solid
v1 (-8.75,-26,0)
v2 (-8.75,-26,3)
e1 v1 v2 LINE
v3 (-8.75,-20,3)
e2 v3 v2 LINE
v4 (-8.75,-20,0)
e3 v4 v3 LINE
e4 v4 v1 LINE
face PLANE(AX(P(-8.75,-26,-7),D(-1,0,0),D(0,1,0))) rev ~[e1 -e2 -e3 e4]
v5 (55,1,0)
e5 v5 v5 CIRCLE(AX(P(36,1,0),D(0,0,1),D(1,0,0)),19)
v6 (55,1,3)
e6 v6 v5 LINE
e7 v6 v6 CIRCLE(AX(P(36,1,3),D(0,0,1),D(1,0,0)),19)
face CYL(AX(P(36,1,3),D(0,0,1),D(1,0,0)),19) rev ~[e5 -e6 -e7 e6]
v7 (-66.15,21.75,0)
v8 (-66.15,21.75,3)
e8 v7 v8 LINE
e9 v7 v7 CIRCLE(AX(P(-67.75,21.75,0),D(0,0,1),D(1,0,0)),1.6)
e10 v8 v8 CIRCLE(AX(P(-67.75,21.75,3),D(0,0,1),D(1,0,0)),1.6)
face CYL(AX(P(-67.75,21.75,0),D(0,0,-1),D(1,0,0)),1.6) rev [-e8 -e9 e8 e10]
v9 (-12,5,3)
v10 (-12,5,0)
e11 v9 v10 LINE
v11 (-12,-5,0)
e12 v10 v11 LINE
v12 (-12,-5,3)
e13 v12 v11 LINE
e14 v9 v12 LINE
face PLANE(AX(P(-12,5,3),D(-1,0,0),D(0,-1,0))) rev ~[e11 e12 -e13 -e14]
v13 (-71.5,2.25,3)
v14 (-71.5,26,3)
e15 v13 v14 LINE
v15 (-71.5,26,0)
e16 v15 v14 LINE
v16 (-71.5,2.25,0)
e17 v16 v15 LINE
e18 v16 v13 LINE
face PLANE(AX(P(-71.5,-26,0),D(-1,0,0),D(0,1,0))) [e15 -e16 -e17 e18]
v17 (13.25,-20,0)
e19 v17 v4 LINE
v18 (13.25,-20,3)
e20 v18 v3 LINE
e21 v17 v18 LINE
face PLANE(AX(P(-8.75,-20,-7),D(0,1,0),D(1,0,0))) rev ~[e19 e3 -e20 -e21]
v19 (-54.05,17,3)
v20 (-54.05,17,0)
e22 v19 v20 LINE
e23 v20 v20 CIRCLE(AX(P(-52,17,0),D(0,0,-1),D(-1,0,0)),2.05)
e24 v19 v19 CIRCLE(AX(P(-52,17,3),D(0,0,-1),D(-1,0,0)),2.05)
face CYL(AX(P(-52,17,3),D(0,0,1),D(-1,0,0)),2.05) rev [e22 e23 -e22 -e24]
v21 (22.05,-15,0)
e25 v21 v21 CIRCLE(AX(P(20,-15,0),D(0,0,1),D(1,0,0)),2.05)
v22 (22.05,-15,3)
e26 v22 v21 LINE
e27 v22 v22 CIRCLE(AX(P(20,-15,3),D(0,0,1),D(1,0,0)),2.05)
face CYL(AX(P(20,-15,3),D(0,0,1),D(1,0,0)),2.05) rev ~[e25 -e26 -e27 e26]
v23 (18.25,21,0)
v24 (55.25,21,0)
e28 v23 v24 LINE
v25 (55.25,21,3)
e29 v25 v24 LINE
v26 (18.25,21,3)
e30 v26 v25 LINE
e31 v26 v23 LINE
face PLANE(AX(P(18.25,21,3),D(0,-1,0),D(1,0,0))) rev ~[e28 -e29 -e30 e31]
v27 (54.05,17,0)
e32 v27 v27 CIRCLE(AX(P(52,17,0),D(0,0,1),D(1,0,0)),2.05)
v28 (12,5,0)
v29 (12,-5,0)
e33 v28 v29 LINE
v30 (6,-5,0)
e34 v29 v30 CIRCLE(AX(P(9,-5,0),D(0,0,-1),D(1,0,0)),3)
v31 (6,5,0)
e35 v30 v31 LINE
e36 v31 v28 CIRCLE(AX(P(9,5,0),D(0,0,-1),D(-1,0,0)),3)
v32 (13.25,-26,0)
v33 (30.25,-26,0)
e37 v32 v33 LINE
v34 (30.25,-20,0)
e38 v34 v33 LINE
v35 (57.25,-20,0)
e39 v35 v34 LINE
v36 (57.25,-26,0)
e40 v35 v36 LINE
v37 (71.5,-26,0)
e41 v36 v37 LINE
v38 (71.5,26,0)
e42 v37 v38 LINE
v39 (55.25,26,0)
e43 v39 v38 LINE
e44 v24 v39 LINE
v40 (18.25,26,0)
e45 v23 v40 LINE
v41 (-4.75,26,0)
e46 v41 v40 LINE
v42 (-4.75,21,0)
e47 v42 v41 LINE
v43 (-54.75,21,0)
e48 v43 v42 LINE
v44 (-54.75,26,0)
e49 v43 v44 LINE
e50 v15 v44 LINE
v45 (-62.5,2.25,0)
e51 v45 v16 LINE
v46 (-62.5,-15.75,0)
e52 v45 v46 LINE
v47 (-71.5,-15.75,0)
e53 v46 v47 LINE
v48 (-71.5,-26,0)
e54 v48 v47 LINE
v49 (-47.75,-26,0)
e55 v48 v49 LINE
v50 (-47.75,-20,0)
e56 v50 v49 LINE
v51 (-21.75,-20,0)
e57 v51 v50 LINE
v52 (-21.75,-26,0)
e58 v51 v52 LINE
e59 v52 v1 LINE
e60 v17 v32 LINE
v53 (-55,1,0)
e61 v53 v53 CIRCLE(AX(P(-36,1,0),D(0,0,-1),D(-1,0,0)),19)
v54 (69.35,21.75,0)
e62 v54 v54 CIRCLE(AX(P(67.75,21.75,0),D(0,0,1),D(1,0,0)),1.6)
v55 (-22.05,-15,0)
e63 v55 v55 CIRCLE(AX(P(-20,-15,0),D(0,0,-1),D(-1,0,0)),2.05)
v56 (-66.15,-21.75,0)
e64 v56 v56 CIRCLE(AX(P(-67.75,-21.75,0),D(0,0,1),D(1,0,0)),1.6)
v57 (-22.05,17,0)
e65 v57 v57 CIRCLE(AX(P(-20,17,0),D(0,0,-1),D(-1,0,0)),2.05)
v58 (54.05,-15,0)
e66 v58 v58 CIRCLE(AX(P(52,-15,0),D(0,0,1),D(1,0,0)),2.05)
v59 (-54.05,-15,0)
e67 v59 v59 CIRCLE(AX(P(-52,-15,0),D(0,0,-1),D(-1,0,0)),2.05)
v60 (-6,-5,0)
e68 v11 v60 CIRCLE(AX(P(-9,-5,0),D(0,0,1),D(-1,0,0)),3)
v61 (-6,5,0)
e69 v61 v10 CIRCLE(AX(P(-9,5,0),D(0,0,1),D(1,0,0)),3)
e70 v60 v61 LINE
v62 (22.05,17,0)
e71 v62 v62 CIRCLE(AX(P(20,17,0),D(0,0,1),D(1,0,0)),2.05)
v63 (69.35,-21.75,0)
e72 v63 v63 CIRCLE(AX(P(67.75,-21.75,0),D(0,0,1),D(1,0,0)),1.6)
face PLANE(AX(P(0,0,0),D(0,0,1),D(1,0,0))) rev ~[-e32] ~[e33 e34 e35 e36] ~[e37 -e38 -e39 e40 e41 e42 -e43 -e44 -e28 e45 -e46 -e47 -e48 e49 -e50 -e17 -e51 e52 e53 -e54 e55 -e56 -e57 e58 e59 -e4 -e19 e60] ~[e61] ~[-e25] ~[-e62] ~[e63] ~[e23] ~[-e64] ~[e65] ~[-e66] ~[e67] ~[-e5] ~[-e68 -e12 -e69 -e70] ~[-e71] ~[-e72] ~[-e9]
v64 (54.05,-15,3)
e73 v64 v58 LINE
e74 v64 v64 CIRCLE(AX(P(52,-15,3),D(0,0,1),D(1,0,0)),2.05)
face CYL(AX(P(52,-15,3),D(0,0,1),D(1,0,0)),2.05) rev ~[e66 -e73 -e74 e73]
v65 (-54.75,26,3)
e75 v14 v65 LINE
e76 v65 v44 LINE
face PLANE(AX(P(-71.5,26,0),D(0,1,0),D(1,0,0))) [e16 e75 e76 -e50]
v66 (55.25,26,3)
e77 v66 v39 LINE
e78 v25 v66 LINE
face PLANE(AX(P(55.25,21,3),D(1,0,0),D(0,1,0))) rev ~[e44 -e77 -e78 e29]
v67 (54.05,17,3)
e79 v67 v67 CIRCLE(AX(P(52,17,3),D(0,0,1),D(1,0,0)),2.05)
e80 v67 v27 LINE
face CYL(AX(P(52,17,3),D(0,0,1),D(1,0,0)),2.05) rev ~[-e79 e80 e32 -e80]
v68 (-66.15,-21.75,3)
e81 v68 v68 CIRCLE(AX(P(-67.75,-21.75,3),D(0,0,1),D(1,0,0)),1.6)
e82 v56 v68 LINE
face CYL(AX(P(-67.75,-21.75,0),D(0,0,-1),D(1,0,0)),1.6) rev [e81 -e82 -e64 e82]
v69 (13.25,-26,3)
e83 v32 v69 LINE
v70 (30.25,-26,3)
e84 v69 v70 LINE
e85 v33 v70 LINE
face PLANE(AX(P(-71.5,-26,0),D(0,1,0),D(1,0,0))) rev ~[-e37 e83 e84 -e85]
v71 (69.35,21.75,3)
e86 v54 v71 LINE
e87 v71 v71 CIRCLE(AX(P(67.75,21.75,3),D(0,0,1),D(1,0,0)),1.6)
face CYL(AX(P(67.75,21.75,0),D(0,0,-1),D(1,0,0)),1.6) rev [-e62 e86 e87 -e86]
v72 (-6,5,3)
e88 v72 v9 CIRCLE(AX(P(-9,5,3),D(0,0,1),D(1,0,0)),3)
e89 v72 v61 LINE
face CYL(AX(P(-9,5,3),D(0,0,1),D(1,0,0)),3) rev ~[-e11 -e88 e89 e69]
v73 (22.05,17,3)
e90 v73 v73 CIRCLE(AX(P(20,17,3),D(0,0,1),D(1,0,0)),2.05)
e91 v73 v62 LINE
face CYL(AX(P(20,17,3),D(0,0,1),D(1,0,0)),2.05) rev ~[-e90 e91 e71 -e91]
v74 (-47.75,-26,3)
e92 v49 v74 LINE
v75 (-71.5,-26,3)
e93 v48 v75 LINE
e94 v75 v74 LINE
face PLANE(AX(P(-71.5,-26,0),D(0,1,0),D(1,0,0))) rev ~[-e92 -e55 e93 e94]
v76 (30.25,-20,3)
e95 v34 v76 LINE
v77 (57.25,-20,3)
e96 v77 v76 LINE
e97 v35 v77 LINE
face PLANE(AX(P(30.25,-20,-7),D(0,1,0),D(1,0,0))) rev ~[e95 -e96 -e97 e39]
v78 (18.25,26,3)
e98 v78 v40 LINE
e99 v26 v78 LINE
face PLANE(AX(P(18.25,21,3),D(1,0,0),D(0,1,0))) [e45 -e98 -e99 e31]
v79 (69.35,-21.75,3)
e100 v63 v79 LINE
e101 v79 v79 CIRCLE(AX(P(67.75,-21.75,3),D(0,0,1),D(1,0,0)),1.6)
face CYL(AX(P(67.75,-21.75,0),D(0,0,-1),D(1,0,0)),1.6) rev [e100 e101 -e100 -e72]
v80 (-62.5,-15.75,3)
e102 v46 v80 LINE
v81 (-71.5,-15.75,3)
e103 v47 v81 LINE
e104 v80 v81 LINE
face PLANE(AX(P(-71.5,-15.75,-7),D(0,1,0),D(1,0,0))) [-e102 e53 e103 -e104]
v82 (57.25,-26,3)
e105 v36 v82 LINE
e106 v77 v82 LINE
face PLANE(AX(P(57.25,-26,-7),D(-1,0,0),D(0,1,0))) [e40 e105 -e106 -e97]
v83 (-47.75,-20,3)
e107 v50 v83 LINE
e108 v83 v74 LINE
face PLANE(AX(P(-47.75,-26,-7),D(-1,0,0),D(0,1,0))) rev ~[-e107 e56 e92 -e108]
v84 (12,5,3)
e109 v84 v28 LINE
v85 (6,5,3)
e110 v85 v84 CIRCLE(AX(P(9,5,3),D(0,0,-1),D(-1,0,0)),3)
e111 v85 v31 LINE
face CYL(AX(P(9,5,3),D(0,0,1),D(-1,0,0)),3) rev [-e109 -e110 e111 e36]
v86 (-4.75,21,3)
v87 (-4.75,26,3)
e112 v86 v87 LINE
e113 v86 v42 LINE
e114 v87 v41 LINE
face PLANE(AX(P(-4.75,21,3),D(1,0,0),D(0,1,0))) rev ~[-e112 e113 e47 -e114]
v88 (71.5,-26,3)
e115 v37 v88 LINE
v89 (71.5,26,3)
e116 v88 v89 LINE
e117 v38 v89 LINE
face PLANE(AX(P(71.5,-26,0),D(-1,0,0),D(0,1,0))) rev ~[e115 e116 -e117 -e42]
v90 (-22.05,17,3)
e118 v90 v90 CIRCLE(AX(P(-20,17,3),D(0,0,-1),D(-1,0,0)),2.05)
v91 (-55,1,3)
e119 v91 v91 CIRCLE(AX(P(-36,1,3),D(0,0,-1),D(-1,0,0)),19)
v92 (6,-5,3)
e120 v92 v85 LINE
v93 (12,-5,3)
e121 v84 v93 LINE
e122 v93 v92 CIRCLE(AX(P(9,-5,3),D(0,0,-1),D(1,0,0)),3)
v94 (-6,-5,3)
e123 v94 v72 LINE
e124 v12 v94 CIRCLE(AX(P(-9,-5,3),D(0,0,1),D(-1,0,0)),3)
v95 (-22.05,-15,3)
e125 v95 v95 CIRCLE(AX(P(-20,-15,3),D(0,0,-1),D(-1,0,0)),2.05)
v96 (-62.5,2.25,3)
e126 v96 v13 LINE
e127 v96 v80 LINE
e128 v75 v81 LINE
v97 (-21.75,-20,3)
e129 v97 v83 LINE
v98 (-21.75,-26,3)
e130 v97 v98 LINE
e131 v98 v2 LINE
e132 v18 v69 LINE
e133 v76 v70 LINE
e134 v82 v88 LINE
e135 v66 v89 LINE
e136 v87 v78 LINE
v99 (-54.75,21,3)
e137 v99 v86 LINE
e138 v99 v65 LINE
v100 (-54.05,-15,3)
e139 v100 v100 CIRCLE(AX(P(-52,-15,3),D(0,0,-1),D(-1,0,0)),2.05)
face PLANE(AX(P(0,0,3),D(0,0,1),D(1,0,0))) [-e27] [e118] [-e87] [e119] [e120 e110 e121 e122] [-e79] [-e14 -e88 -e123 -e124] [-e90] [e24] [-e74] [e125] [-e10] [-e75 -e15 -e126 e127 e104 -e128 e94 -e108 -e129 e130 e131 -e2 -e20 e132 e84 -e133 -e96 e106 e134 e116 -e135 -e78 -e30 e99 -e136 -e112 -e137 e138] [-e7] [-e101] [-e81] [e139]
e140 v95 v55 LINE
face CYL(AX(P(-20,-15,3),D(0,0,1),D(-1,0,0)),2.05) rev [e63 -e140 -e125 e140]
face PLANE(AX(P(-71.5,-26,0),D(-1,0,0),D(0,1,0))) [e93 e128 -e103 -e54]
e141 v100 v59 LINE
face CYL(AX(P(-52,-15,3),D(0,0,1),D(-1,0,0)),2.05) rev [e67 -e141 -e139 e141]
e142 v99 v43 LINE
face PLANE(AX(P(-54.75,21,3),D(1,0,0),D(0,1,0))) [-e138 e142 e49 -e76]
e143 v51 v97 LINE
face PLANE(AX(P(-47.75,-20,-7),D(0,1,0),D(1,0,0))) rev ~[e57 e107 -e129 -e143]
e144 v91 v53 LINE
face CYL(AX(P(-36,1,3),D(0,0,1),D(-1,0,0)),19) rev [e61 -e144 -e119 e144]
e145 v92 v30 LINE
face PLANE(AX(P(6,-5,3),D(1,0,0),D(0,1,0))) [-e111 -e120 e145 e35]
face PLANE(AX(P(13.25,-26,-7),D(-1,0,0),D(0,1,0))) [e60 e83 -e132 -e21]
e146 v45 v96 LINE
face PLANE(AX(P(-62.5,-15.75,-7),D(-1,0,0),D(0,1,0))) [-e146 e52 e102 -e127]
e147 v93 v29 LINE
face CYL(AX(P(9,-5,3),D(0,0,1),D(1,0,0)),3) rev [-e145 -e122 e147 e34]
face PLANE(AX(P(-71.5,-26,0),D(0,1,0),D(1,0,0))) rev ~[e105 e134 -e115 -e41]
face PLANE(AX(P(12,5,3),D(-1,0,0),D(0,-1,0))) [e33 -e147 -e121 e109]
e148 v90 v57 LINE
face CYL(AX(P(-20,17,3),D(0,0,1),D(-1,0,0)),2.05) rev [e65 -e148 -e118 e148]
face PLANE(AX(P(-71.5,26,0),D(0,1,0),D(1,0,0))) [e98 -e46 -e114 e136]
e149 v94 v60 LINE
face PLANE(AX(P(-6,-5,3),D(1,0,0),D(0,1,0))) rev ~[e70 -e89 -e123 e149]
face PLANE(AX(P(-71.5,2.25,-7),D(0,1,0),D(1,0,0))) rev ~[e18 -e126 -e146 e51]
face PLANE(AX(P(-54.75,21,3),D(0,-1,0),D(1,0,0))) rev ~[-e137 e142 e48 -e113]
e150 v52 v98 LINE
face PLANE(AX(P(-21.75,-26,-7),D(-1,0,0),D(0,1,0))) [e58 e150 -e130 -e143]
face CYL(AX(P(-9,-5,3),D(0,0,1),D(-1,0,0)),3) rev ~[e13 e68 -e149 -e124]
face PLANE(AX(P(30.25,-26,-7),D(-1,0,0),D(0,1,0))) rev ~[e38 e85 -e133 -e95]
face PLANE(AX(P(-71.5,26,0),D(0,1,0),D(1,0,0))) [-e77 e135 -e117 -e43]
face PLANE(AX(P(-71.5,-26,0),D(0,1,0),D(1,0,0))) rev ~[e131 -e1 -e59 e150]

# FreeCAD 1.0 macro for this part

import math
import FreeCAD as App
import Part
import Sketcher
from FreeCAD import Vector

doc = App.newDocument("Part")
body = doc.addObject("PartDesign::Body", "Body")

sketch1 = doc.addObject("Sketcher::SketchObject", "Sketch")
body.addObject(sketch1)
sketch1.AttachmentSupport = (doc.XY_Plane, [""])
sketch1.MapMode = "FlatFace"
sketch1.addGeometry([
    Part.LineSegment(Vector(-71.5, 26, 0), Vector(-71.5, -26, 0)),
    Part.LineSegment(Vector(-71.5, -26, 0), Vector(71.5, -26, 0)),
    Part.LineSegment(Vector(71.5, -26, 0), Vector(71.5, 26, 0)),
    Part.LineSegment(Vector(71.5, 26, 0), Vector(-71.5, 26, 0)),
    Part.Circle(Vector(-67.8, -21.8, 0), Vector(0, 0, 1), 1.6),
    Part.Circle(Vector(67.8, -21.8, 0), Vector(0, 0, 1), 1.6),
    Part.Circle(Vector(-67.8, 21.8, 0), Vector(0, 0, 1), 1.6),
    Part.Circle(Vector(67.8, 21.8, 0), Vector(0, 0, 1), 1.6),
], False)
sketch1.addConstraint([
    Sketcher.Constraint("Coincident", 0, 2, 1, 1),
    Sketcher.Constraint("Coincident", 1, 2, 2, 1),
    Sketcher.Constraint("Coincident", 2, 2, 3, 1),
    Sketcher.Constraint("Coincident", 3, 2, 0, 1),
    Sketcher.Constraint("Vertical", 0),
    Sketcher.Constraint("Horizontal", 1),
    Sketcher.Constraint("Vertical", 2),
    Sketcher.Constraint("Horizontal", 3),
    Sketcher.Constraint("Equal", 4, 5),
    Sketcher.Constraint("Equal", 5, 6),
    Sketcher.Constraint("Equal", 6, 7),
    Sketcher.Constraint("Symmetric", 5, 3, 6, 3, -1, 1),
    Sketcher.Constraint("Symmetric", 4, 3, 7, 3, -1, 1),
    Sketcher.Constraint("Symmetric", 0, 2, 2, 2, -1, 1),
    Sketcher.Constraint("Symmetric", 4, 3, 5, 3, -2),
    Sketcher.Constraint("Diameter", 4, 3.2),
    Sketcher.Constraint("DistanceX", 1, 1, 1, 2, 143.0),
    Sketcher.Constraint("DistanceY", 0, 2, 0, 1, 52.0),
    Sketcher.Constraint("DistanceX", 4, 3, 5, 3, 135.5),
    Sketcher.Constraint("DistanceY", 4, 3, 6, 3, 43.5),
])
pad1 = doc.addObject("PartDesign::Pad", "Pad")
body.addObject(pad1)
pad1.Profile = sketch1
pad1.Length = 3

sketch2 = doc.addObject("Sketcher::SketchObject", "Sketch001")
body.addObject(sketch2)
sketch2.AttachmentSupport = (doc.XY_Plane, [""])
sketch2.MapMode = "FlatFace"
sketch2.AttachmentOffset = App.Placement(Vector(0, 0, 3), App.Rotation())
sketch2.addGeometry([
    Part.LineSegment(Vector(-48, -20, 0), Vector(-48, -26, 0)),
    Part.LineSegment(Vector(-48, -26, 0), Vector(-22, -26, 0)),
    Part.LineSegment(Vector(-22, -26, 0), Vector(-22, -20, 0)),
    Part.LineSegment(Vector(-22, -20, 0), Vector(-48, -20, 0)),
    Part.LineSegment(Vector(-9, -20, 0), Vector(-9, -26, 0)),
    Part.LineSegment(Vector(-9, -26, 0), Vector(13, -26, 0)),
    Part.LineSegment(Vector(13, -26, 0), Vector(13, -20, 0)),
    Part.LineSegment(Vector(13, -20, 0), Vector(-9, -20, 0)),
    Part.LineSegment(Vector(30, -20, 0), Vector(30, -26, 0)),
    Part.LineSegment(Vector(30, -26, 0), Vector(57, -26, 0)),
    Part.LineSegment(Vector(57, -26, 0), Vector(57, -20, 0)),
    Part.LineSegment(Vector(57, -20, 0), Vector(30, -20, 0)),
    Part.LineSegment(Vector(-72, 2, 0), Vector(-72, -16, 0)),
    Part.LineSegment(Vector(-72, -16, 0), Vector(-62, -16, 0)),
    Part.LineSegment(Vector(-62, -16, 0), Vector(-62, 2, 0)),
    Part.LineSegment(Vector(-62, 2, 0), Vector(-72, 2, 0)),
], False)
sketch2.addConstraint([
    Sketcher.Constraint("Coincident", 0, 2, 1, 1),
    Sketcher.Constraint("Coincident", 1, 2, 2, 1),
    Sketcher.Constraint("Coincident", 2, 2, 3, 1),
    Sketcher.Constraint("Coincident", 3, 2, 0, 1),
    Sketcher.Constraint("Coincident", 4, 2, 5, 1),
    Sketcher.Constraint("Coincident", 5, 2, 6, 1),
    Sketcher.Constraint("Coincident", 6, 2, 7, 1),
    Sketcher.Constraint("Coincident", 7, 2, 4, 1),
    Sketcher.Constraint("Coincident", 8, 2, 9, 1),
    Sketcher.Constraint("Coincident", 9, 2, 10, 1),
    Sketcher.Constraint("Coincident", 10, 2, 11, 1),
    Sketcher.Constraint("Coincident", 11, 2, 8, 1),
    Sketcher.Constraint("Coincident", 12, 2, 13, 1),
    Sketcher.Constraint("Coincident", 13, 2, 14, 1),
    Sketcher.Constraint("Coincident", 14, 2, 15, 1),
    Sketcher.Constraint("Coincident", 15, 2, 12, 1),
    Sketcher.Constraint("Vertical", 0),
    Sketcher.Constraint("Horizontal", 1),
    Sketcher.Constraint("Vertical", 2),
    Sketcher.Constraint("Horizontal", 3),
    Sketcher.Constraint("Vertical", 4),
    Sketcher.Constraint("Horizontal", 5),
    Sketcher.Constraint("Vertical", 6),
    Sketcher.Constraint("Horizontal", 7),
    Sketcher.Constraint("Vertical", 8),
    Sketcher.Constraint("Horizontal", 9),
    Sketcher.Constraint("Vertical", 10),
    Sketcher.Constraint("Horizontal", 11),
    Sketcher.Constraint("Vertical", 12),
    Sketcher.Constraint("Horizontal", 13),
    Sketcher.Constraint("Vertical", 14),
    Sketcher.Constraint("Horizontal", 15),
    Sketcher.Constraint("Horizontal", 1, 2, 4, 2),
    Sketcher.Constraint("Horizontal", 3, 2, 6, 2),
    Sketcher.Constraint("Horizontal", 5, 2, 8, 2),
    Sketcher.Constraint("Horizontal", 7, 2, 10, 2),
    Sketcher.Constraint("DistanceX", 1, 1, 1, 2, 26.0),
    Sketcher.Constraint("DistanceX", 5, 1, 5, 2, 22.0),
    Sketcher.Constraint("DistanceX", 9, 1, 9, 2, 27.0),
    Sketcher.Constraint("DistanceX", 13, 1, 13, 2, 9.0),
    Sketcher.Constraint("DistanceY", 0, 2, 0, 1, 6.0),
    Sketcher.Constraint("DistanceY", 12, 2, 12, 1, 18.0),
    Sketcher.Constraint("DistanceY", 0, 2, -1, 1, 26.0),
    Sketcher.Constraint("DistanceX", 1, 2, 4, 2, 13.0),
    Sketcher.Constraint("DistanceX", 5, 2, 8, 2, 17.0),
    Sketcher.Constraint("DistanceX", 12, 2, -1, 1, 71.5),
    Sketcher.Constraint("DistanceX", 0, 2, -1, 1, 47.75),
    Sketcher.Constraint("DistanceY", 12, 2, -1, 1, 15.75),
])
pocket1 = doc.addObject("PartDesign::Pocket", "Pocket")
body.addObject(pocket1)
pocket1.Profile = sketch2
pocket1.Type = "ThroughAll"
pocket1.Midplane = True

sketch3 = doc.addObject("Sketcher::SketchObject", "Sketch002")
body.addObject(sketch3)
sketch3.AttachmentSupport = (doc.XY_Plane, [""])
sketch3.MapMode = "FlatFace"
sketch3.AttachmentOffset = App.Placement(Vector(0, 0, 3), App.Rotation())
sketch3.addGeometry([
    Part.LineSegment(Vector(-55, 26, 0), Vector(-55, 21, 0)),
    Part.LineSegment(Vector(-55, 21, 0), Vector(-5, 21, 0)),
    Part.LineSegment(Vector(-5, 21, 0), Vector(-5, 26, 0)),
    Part.LineSegment(Vector(-5, 26, 0), Vector(-55, 26, 0)),
    Part.LineSegment(Vector(18, 26, 0), Vector(18, 21, 0)),
    Part.LineSegment(Vector(18, 21, 0), Vector(55, 21, 0)),
    Part.LineSegment(Vector(55, 21, 0), Vector(55, 26, 0)),
    Part.LineSegment(Vector(55, 26, 0), Vector(18, 26, 0)),
], False)
sketch3.addConstraint([
    Sketcher.Constraint("Coincident", 0, 2, 1, 1),
    Sketcher.Constraint("Coincident", 1, 2, 2, 1),
    Sketcher.Constraint("Coincident", 2, 2, 3, 1),
    Sketcher.Constraint("Coincident", 3, 2, 0, 1),
    Sketcher.Constraint("Coincident", 4, 2, 5, 1),
    Sketcher.Constraint("Coincident", 5, 2, 6, 1),
    Sketcher.Constraint("Coincident", 6, 2, 7, 1),
    Sketcher.Constraint("Coincident", 7, 2, 4, 1),
    Sketcher.Constraint("Vertical", 0),
    Sketcher.Constraint("Horizontal", 1),
    Sketcher.Constraint("Vertical", 2),
    Sketcher.Constraint("Horizontal", 3),
    Sketcher.Constraint("Vertical", 4),
    Sketcher.Constraint("Horizontal", 5),
    Sketcher.Constraint("Vertical", 6),
    Sketcher.Constraint("Horizontal", 7),
    Sketcher.Constraint("Horizontal", 1, 2, 4, 2),
    Sketcher.Constraint("Horizontal", 3, 2, 6, 2),
    Sketcher.Constraint("DistanceX", 1, 1, 1, 2, 50.0),
    Sketcher.Constraint("DistanceX", 5, 1, 5, 2, 37.0),
    Sketcher.Constraint("DistanceY", 0, 2, 0, 1, 5.0),
    Sketcher.Constraint("DistanceY", -1, 1, 0, 2, 21.0),
    Sketcher.Constraint("DistanceX", 1, 2, 4, 2, 23.0),
    Sketcher.Constraint("DistanceX", 0, 2, -1, 1, 54.75),
])
pocket2 = doc.addObject("PartDesign::Pocket", "Pocket001")
body.addObject(pocket2)
pocket2.Profile = sketch3
pocket2.Length = 3

sketch4 = doc.addObject("Sketcher::SketchObject", "Sketch003")
body.addObject(sketch4)
sketch4.AttachmentSupport = (doc.XY_Plane, [""])
sketch4.MapMode = "FlatFace"
sketch4.AttachmentOffset = App.Placement(Vector(0, 0, 3), App.Rotation())
sketch4.addGeometry([
    Part.Circle(Vector(52, -15, 0), Vector(0, 0, 1), 2),
    Part.Circle(Vector(20, -15, 0), Vector(0, 0, 1), 2),
    Part.Circle(Vector(20, 17, 0), Vector(0, 0, 1), 2),
    Part.Circle(Vector(52, 17, 0), Vector(0, 0, 1), 2),
    Part.Circle(Vector(36, 1, 0), Vector(0, 0, 1), 19),
], False)
sketch4.addConstraint([
    Sketcher.Constraint("Equal", 0, 1),
    Sketcher.Constraint("Equal", 1, 2),
    Sketcher.Constraint("Equal", 2, 3),
    Sketcher.Constraint("Horizontal", 0, 3, 1, 3),
    Sketcher.Constraint("Horizontal", 2, 3, 3, 3),
    Sketcher.Constraint("Vertical", 1, 3, 2, 3),
    Sketcher.Constraint("Vertical", 0, 3, 3, 3),
    Sketcher.Constraint("Diameter", 4, 38.0),
    Sketcher.Constraint("Diameter", 0, 4.1),
    Sketcher.Constraint("DistanceX", -1, 1, 0, 3, 52.0),
    Sketcher.Constraint("DistanceY", 0, 3, -1, 1, 15.0),
    Sketcher.Constraint("DistanceX", -1, 1, 1, 3, 20.0),
    Sketcher.Constraint("DistanceY", -1, 1, 2, 3, 17.0),
    Sketcher.Constraint("DistanceX", -1, 1, 4, 3, 36.0),
    Sketcher.Constraint("DistanceY", -1, 1, 4, 3, 1.0),
])
pocket3 = doc.addObject("PartDesign::Pocket", "Pocket002")
body.addObject(pocket3)
pocket3.Profile = sketch4
pocket3.Length = 3
doc.recompute()

mirrored = doc.addObject("PartDesign::Mirrored", "Mirrored")
body.addObject(mirrored)
mirrored.Originals = [pocket3]
mirrored.MirrorPlane = (doc.YZ_Plane, [""])
body.Tip = mirrored

sketch5 = doc.addObject("Sketcher::SketchObject", "Sketch004")
body.addObject(sketch5)
sketch5.AttachmentSupport = (doc.XY_Plane, [""])
sketch5.MapMode = "FlatFace"
sketch5.AttachmentOffset = App.Placement(Vector(0, 0, 3), App.Rotation())
sketch5.addGeometry([
    Part.LineSegment(Vector(6, 5, 0), Vector(6, -5, 0)),
    Part.ArcOfCircle(Part.Circle(Vector(9, -5, 0), Vector(0, 0, 1), 3), math.radians(180), math.radians(360)),
    Part.LineSegment(Vector(12, -5, 0), Vector(12, 5, 0)),
    Part.ArcOfCircle(Part.Circle(Vector(9, 5, 0), Vector(0, 0, 1), 3), math.radians(0), math.radians(180)),
    Part.LineSegment(Vector(-6, -5, 0), Vector(-6, 5, 0)),
    Part.ArcOfCircle(Part.Circle(Vector(-9, 5, 0), Vector(0, 0, 1), 3), math.radians(0), math.radians(180)),
    Part.LineSegment(Vector(-12, 5, 0), Vector(-12, -5, 0)),
    Part.ArcOfCircle(Part.Circle(Vector(-9, -5, 0), Vector(0, 0, 1), 3), math.radians(180), math.radians(360)),
], False)
sketch5.addConstraint([
    Sketcher.Constraint("Tangent", 0, 2, 1, 1),
    Sketcher.Constraint("Tangent", 1, 2, 2, 1),
    Sketcher.Constraint("Tangent", 2, 2, 3, 1),
    Sketcher.Constraint("Tangent", 3, 2, 0, 1),
    Sketcher.Constraint("Tangent", 4, 2, 5, 1),
    Sketcher.Constraint("Tangent", 5, 2, 6, 1),
    Sketcher.Constraint("Tangent", 6, 2, 7, 1),
    Sketcher.Constraint("Tangent", 7, 2, 4, 1),
    Sketcher.Constraint("Vertical", 0),
    Sketcher.Constraint("Vertical", 2),
    Sketcher.Constraint("Vertical", 4),
    Sketcher.Constraint("Vertical", 6),
    Sketcher.Constraint("Equal", 3, 5),
    Sketcher.Constraint("Symmetric", 1, 3, 5, 3, -1, 1),
    Sketcher.Constraint("Horizontal", 3, 3, 5, 3),
    Sketcher.Constraint("Horizontal", 1, 3, 7, 3),
    Sketcher.Constraint("Radius", 1, 3.0),
    Sketcher.Constraint("DistanceY", 0, 2, 0, 1, 10.0),
    Sketcher.Constraint("DistanceX", -1, 1, 1, 3, 9.0),
])
pocket4 = doc.addObject("PartDesign::Pocket", "Pocket003")
body.addObject(pocket4)
pocket4.Profile = sketch5
pocket4.Length = 3

doc.recompute()
